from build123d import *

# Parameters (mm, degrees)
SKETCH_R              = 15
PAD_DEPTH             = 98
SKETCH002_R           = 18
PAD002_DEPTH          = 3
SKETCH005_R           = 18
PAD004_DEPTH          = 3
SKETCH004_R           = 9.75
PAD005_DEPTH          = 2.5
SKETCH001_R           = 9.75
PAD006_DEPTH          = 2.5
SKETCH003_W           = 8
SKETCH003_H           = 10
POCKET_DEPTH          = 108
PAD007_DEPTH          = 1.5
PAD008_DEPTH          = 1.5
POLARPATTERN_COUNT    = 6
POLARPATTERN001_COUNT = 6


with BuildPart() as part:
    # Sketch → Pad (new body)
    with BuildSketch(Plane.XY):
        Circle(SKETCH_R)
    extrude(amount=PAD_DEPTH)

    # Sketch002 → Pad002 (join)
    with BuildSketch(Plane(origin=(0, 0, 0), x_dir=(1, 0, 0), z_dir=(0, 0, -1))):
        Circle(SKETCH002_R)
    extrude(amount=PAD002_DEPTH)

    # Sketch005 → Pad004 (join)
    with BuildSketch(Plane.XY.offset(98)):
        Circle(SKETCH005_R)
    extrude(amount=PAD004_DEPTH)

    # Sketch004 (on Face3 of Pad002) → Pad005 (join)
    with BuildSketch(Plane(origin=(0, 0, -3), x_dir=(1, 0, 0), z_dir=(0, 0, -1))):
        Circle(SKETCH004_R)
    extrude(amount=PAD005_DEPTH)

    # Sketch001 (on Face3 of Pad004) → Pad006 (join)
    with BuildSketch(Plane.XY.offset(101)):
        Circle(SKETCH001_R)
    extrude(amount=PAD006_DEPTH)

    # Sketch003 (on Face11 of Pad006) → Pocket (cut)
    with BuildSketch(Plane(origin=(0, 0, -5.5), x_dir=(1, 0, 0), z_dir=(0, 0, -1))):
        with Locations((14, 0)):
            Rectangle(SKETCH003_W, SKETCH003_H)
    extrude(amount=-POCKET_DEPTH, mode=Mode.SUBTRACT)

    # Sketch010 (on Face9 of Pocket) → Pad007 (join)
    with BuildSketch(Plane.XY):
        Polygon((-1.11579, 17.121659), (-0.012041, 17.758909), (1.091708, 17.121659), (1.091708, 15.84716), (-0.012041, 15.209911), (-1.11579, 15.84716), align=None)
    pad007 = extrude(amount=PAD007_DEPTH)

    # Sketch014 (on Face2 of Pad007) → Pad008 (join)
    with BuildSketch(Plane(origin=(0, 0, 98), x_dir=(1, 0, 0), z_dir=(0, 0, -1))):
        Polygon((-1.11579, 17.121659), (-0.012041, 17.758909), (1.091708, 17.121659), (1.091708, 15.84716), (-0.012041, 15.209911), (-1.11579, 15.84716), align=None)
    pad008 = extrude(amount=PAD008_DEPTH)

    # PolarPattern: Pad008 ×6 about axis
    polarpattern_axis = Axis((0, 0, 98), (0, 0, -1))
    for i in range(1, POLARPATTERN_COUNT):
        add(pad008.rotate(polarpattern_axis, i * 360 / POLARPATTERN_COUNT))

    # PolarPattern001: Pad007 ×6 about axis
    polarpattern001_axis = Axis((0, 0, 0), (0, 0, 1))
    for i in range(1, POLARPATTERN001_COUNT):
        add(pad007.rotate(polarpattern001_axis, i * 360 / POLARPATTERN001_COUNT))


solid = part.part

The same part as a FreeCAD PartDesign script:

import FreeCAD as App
import Part
import Sketcher
from FreeCAD import Vector
Q = App.Units.Quantity


def add_polygon(sketch, points):
    """Adds a closed chain of lines whose ends are joined by coincident constraints."""
    first, n = sketch.GeometryCount, len(points)
    for a, b in zip(points, points[1:] + points[:1]):
        sketch.addGeometry(Part.LineSegment(App.Vector(*a, 0), App.Vector(*b, 0)), False)
    for i in range(n):
        sketch.addConstraint(Sketcher.Constraint("Coincident", first + i, 2, first + (i + 1) % n, 1))

doc = App.newDocument("Part")
body = doc.addObject("PartDesign::Body", "Body")

# Sketch on XY plane
sketch1 = doc.addObject("Sketcher::SketchObject", "Sketch")
body.addObject(sketch1)
sketch1.AttachmentSupport = (doc.XY_Plane, [""])
sketch1.MapMode = "FlatFace"
sketch1.addGeometry(Part.Circle(Vector(0, 0, 0), Vector(0, 0, 1), 15), False)
sketch1.addConstraint(Sketcher.Constraint("Coincident", 0, 3, -1, 1))
sketch1.addConstraint(Sketcher.Constraint("Diameter", 0, 30.0))
pad1 = doc.addObject("PartDesign::Pad", "Pad")
body.addObject(pad1)
pad1.Profile = sketch1
pad1.Length = 98

# Sketch on XY plane
sketch2 = doc.addObject("Sketcher::SketchObject", "Sketch001")
body.addObject(sketch2)
sketch2.AttachmentSupport = (doc.XY_Plane, [""])
sketch2.MapMode = "FlatFace"
sketch2.addGeometry(Part.Circle(Vector(0, 0, 0), Vector(0, 0, 1), 18), False)
sketch2.addConstraint(Sketcher.Constraint("Coincident", 0, 3, -1, 1))
sketch2.addConstraint(Sketcher.Constraint("Diameter", 0, 36.0))
pad2 = doc.addObject("PartDesign::Pad", "Pad001")
body.addObject(pad2)
pad2.Profile = sketch2
pad2.Length = 3
pad2.Reversed = True

# Sketch on XY plane
sketch3 = doc.addObject("Sketcher::SketchObject", "Sketch002")
body.addObject(sketch3)
sketch3.AttachmentSupport = (doc.XY_Plane, [""])
sketch3.MapMode = "FlatFace"
sketch3.AttachmentOffset = App.Placement(Vector(0, 0, 98), App.Rotation())
sketch3.addGeometry(Part.Circle(Vector(0, 0, 0), Vector(0, 0, 1), 18), False)
sketch3.addConstraint(Sketcher.Constraint("Coincident", 0, 3, -1, 1))
sketch3.addConstraint(Sketcher.Constraint("Diameter", 0, 36.0))
pad3 = doc.addObject("PartDesign::Pad", "Pad002")
body.addObject(pad3)
pad3.Profile = sketch3
pad3.Length = 3

# Sketch on XY plane
sketch4 = doc.addObject("Sketcher::SketchObject", "Sketch003")
body.addObject(sketch4)
sketch4.AttachmentSupport = (doc.XY_Plane, [""])
sketch4.MapMode = "FlatFace"
sketch4.AttachmentOffset = App.Placement(Vector(0, 0, -3), App.Rotation())
sketch4.addGeometry(Part.Circle(Vector(0, 0, 0), Vector(0, 0, 1), 10), False)
sketch4.addConstraint(Sketcher.Constraint("Coincident", 0, 3, -1, 1))
sketch4.addConstraint(Sketcher.Constraint("Diameter", 0, 19.5))
pad4 = doc.addObject("PartDesign::Pad", "Pad003")
body.addObject(pad4)
pad4.Profile = sketch4
pad4.Length = 2.5
pad4.Reversed = True

# Sketch on XY plane
sketch5 = doc.addObject("Sketcher::SketchObject", "Sketch004")
body.addObject(sketch5)
sketch5.AttachmentSupport = (doc.XY_Plane, [""])
sketch5.MapMode = "FlatFace"
sketch5.AttachmentOffset = App.Placement(Vector(0, 0, 101), App.Rotation())
sketch5.addGeometry(Part.Circle(Vector(0, 0, 0), Vector(0, 0, 1), 10), False)
sketch5.addConstraint(Sketcher.Constraint("Coincident", 0, 3, -1, 1))
sketch5.addConstraint(Sketcher.Constraint("Diameter", 0, 19.5))
pad5 = doc.addObject("PartDesign::Pad", "Pad004")
body.addObject(pad5)
pad5.Profile = sketch5
pad5.Length = 2.5

# Sketch on XY plane
sketch6 = doc.addObject("Sketcher::SketchObject", "Sketch005")
body.addObject(sketch6)
sketch6.AttachmentSupport = (doc.XY_Plane, [""])
sketch6.MapMode = "FlatFace"
sketch6.AttachmentOffset = App.Placement(Vector(0, 0, -5.5), App.Rotation())
add_polygon(sketch6, [(10, -5), (10, 5), (18, 5), (18, -5)])  # lines 0-3
sketch6.addConstraint(Sketcher.Constraint("Vertical", 0))
sketch6.addConstraint(Sketcher.Constraint("Horizontal", 1))
sketch6.addConstraint(Sketcher.Constraint("Vertical", 2))
sketch6.addConstraint(Sketcher.Constraint("Horizontal", 3))
sketch6.addConstraint(Sketcher.Constraint("DistanceX", 1, 1, 1, 2, 8.0))
sketch6.addConstraint(Sketcher.Constraint("DistanceY", 0, 1, 0, 2, 10.0))
sketch6.addConstraint(Sketcher.Constraint("DistanceX", -1, 1, 0, 2, 10.0))
sketch6.addConstraint(Sketcher.Constraint("DistanceY", -1, 1, 0, 2, 5.0))
pocket1 = doc.addObject("PartDesign::Pocket", "Pocket")
body.addObject(pocket1)
pocket1.Profile = sketch6
pocket1.Length = 108
pocket1.Reversed = True

# Sketch on XY plane
sketch7 = doc.addObject("Sketcher::SketchObject", "Sketch006")
body.addObject(sketch7)
sketch7.AttachmentSupport = (doc.XY_Plane, [""])
sketch7.MapMode = "FlatFace"
add_polygon(sketch7, [(0, 17.8), (-1.1, 17.1), (-1.1, 15.8), (0, 15.2), (1.1, 15.8), (1.1, 17.1)])  # lines 0-5
sketch7.addConstraint(Sketcher.Constraint("Vertical", 1))
sketch7.addConstraint(Sketcher.Constraint("Vertical", 4))
sketch7.addConstraint(Sketcher.Constraint("Parallel", 0, 3))
sketch7.addConstraint(Sketcher.Constraint("Parallel", 2, 5))
sketch7.addConstraint(Sketcher.Constraint("Horizontal", 1, 2, 3, 2))
sketch7.addConstraint(Sketcher.Constraint("Horizontal", 0, 2, 4, 2))
sketch7.addConstraint(Sketcher.Constraint("Vertical", 2, 2, 5, 2))
sketch7.addConstraint(Sketcher.Constraint("Angle", 0, Q("-149.999992 deg")))
sketch7.addConstraint(Sketcher.Constraint("DistanceY", 1, 2, 1, 1, 1.274499))
sketch7.addConstraint(Sketcher.Constraint("Distance", 0, 1.2745))
sketch7.addConstraint(Sketcher.Constraint("DistanceX", 0, 2, -1, 1, 1.11579))
sketch7.addConstraint(Sketcher.Constraint("DistanceY", -1, 1, 0, 2, 17.121659))
pad6 = doc.addObject("PartDesign::Pad", "Pad005")
body.addObject(pad6)
pad6.Profile = sketch7
pad6.Length = 1.5

# Sketch on XY plane
sketch8 = doc.addObject("Sketcher::SketchObject", "Sketch007")
body.addObject(sketch8)
sketch8.AttachmentSupport = (doc.XY_Plane, [""])
sketch8.MapMode = "FlatFace"
sketch8.AttachmentOffset = App.Placement(Vector(0, 0, 98), App.Rotation())
add_polygon(sketch8, [(0, -17.8), (-1.1, -17.1), (-1.1, -15.8), (0, -15.2), (1.1, -15.8), (1.1, -17.1)])  # lines 0-5
sketch8.addConstraint(Sketcher.Constraint("Vertical", 1))
sketch8.addConstraint(Sketcher.Constraint("Vertical", 4))
sketch8.addConstraint(Sketcher.Constraint("Parallel", 0, 3))
sketch8.addConstraint(Sketcher.Constraint("Parallel", 2, 5))
sketch8.addConstraint(Sketcher.Constraint("Horizontal", 1, 2, 3, 2))
sketch8.addConstraint(Sketcher.Constraint("Horizontal", 0, 2, 4, 2))
sketch8.addConstraint(Sketcher.Constraint("Vertical", 2, 2, 5, 2))
sketch8.addConstraint(Sketcher.Constraint("Angle", 0, Q("149.999992 deg")))
sketch8.addConstraint(Sketcher.Constraint("DistanceY", 1, 1, 1, 2, 1.274499))
sketch8.addConstraint(Sketcher.Constraint("Distance", 0, 1.2745))
sketch8.addConstraint(Sketcher.Constraint("DistanceX", 0, 2, -1, 1, 1.11579))
sketch8.addConstraint(Sketcher.Constraint("DistanceY", 0, 2, -1, 1, 17.121659))
pad7 = doc.addObject("PartDesign::Pad", "Pad006")
body.addObject(pad7)
pad7.Profile = sketch8
pad7.Length = 1.5
pad7.Reversed = True
doc.recompute()

polarpattern = doc.addObject("PartDesign::PolarPattern", "PolarPattern")
body.addObject(polarpattern)
polarpattern.Originals = [pad7]
polarpattern.Axis = (doc.Z_Axis, [""])
polarpattern.Angle = 360
polarpattern.Occurrences = 6
body.Tip = polarpattern
doc.recompute()

polarpattern2 = doc.addObject("PartDesign::PolarPattern", "PolarPattern001")
body.addObject(polarpattern2)
polarpattern2.Originals = [pad6]
polarpattern2.Axis = (doc.Z_Axis, [""])
polarpattern2.Angle = 360
polarpattern2.Occurrences = 6
body.Tip = polarpattern2

doc.recompute()
